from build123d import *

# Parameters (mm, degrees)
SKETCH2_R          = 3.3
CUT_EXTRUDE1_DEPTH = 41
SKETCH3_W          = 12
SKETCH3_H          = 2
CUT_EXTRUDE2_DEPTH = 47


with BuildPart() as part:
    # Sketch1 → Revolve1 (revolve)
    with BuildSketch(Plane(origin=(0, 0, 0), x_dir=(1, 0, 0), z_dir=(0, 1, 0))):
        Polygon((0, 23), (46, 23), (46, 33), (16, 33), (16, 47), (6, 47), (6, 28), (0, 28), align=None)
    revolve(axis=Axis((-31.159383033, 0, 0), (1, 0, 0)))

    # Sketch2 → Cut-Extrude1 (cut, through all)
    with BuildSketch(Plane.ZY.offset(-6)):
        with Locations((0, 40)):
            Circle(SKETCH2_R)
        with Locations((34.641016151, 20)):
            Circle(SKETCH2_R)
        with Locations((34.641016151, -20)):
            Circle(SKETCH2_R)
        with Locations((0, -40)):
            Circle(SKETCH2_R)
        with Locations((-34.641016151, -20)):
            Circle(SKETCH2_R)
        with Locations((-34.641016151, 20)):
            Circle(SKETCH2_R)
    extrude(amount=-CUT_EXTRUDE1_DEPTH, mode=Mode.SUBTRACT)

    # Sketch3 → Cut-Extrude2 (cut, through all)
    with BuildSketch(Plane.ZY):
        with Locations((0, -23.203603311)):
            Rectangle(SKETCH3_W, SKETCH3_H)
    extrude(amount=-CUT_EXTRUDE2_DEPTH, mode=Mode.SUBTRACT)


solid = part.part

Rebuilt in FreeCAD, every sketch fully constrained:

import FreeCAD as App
import Part
import Sketcher
from FreeCAD import Vector
Q = App.Units.Quantity

doc = App.newDocument("Part")
body = doc.addObject("PartDesign::Body", "Body")

sketch1 = doc.addObject("Sketcher::SketchObject", "Sketch")
body.addObject(sketch1)
sketch1.AttachmentSupport = (doc.XZ_Plane, [""])
sketch1.MapMode = "FlatFace"
sketch1.addGeometry([
    Part.LineSegment(Vector(0, -23, 0), Vector(46, -23, 0)),
    Part.LineSegment(Vector(46, -23, 0), Vector(46, -33, 0)),
    Part.LineSegment(Vector(46, -33, 0), Vector(16, -33, 0)),
    Part.LineSegment(Vector(16, -33, 0), Vector(16, -47, 0)),
    Part.LineSegment(Vector(16, -47, 0), Vector(6, -47, 0)),
    Part.LineSegment(Vector(6, -47, 0), Vector(6, -28, 0)),
    Part.LineSegment(Vector(6, -28, 0), Vector(0, -28, 0)),
    Part.LineSegment(Vector(0, -28, 0), Vector(0, -23, 0)),
], False)
sketch1.addConstraint([
    Sketcher.Constraint("Coincident", 0, 2, 1, 1),
    Sketcher.Constraint("Coincident", 1, 2, 2, 1),
    Sketcher.Constraint("Coincident", 2, 2, 3, 1),
    Sketcher.Constraint("Coincident", 3, 2, 4, 1),
    Sketcher.Constraint("Coincident", 4, 2, 5, 1),
    Sketcher.Constraint("Coincident", 5, 2, 6, 1),
    Sketcher.Constraint("Coincident", 6, 2, 7, 1),
    Sketcher.Constraint("Coincident", 7, 2, 0, 1),
    Sketcher.Constraint("Horizontal", 0),
    Sketcher.Constraint("Vertical", 1),
    Sketcher.Constraint("Horizontal", 2),
    Sketcher.Constraint("Vertical", 3),
    Sketcher.Constraint("Horizontal", 4),
    Sketcher.Constraint("Vertical", 5),
    Sketcher.Constraint("Horizontal", 6),
    Sketcher.Constraint("Vertical", 7),
    Sketcher.Constraint("PointOnObject", 6, 2, -2),
    Sketcher.Constraint("Equal", 4, 1),
    Sketcher.Constraint("DistanceX", 0, 1, 0, 2, Q("46 mm")),
    Sketcher.Constraint("DistanceX", 2, 2, 2, 1, Q("30 mm")),
    Sketcher.Constraint("DistanceX", 4, 2, 4, 1, Q("10 mm")),
    Sketcher.Constraint("DistanceY", 3, 2, 3, 1, Q("14 mm")),
    Sketcher.Constraint("DistanceY", 5, 1, 5, 2, Q("19 mm")),
    Sketcher.Constraint("DistanceY", 0, 2, -1, 1, Q("23 mm")),
])
revolution = doc.addObject("PartDesign::Revolution", "Revolution")
body.addObject(revolution)
revolution.Profile = sketch1
revolution.ReferenceAxis = (sketch1, ["H_Axis"])
revolution.Angle = 360

sketch2 = doc.addObject("Sketcher::SketchObject", "Sketch001")
body.addObject(sketch2)
sketch2.AttachmentSupport = (doc.YZ_Plane, [""])
sketch2.MapMode = "FlatFace"
sketch2.AttachmentOffset = App.Placement(Vector(0, 0, 6), App.Rotation())
sketch2.addGeometry([
    Part.Circle(Vector(40, 0, 0), Vector(0, 0, 1), 3.3),
    Part.Circle(Vector(20, 34.6, 0), Vector(0, 0, 1), 3.3),
    Part.Circle(Vector(-20, 34.6, 0), Vector(0, 0, 1), 3.3),
    Part.Circle(Vector(-40, 0, 0), Vector(0, 0, 1), 3.3),
    Part.Circle(Vector(-20, -34.6, 0), Vector(0, 0, 1), 3.3),
    Part.Circle(Vector(20, -34.6, 0), Vector(0, 0, 1), 3.3),
], False)
sketch2.addConstraint([
    Sketcher.Constraint("Equal", 0, 1),
    Sketcher.Constraint("Equal", 1, 2),
    Sketcher.Constraint("Equal", 2, 3),
    Sketcher.Constraint("Equal", 3, 4),
    Sketcher.Constraint("Equal", 4, 5),
    Sketcher.Constraint("Symmetric", 0, 3, 3, 3, -1, 1),
    Sketcher.Constraint("Symmetric", 1, 3, 4, 3, -1, 1),
    Sketcher.Constraint("Symmetric", 2, 3, 5, 3, -1, 1),
    Sketcher.Constraint("Symmetric", 1, 3, 2, 3, -2),
    Sketcher.Constraint("PointOnObject", 0, 3, -1),
    Sketcher.Constraint("Diameter", 0, Q("6.6 mm")),
    Sketcher.Constraint("DistanceX", -1, 1, 0, 3, Q("40 mm")),
    Sketcher.Constraint("DistanceX", -1, 1, 1, 3, Q("20 mm")),
    Sketcher.Constraint("DistanceY", -1, 1, 1, 3, Q("34.641016 mm")),
])
pocket1 = doc.addObject("PartDesign::Pocket", "Pocket")
body.addObject(pocket1)
pocket1.Profile = sketch2
pocket1.Type = "ThroughAll"
pocket1.Reversed = True

sketch3 = doc.addObject("Sketcher::SketchObject", "Sketch002")
body.addObject(sketch3)
sketch3.AttachmentSupport = (doc.YZ_Plane, [""])
sketch3.MapMode = "FlatFace"
sketch3.addGeometry([
    Part.LineSegment(Vector(-22.2, -6, 0), Vector(-24.2, -6, 0)),
    Part.LineSegment(Vector(-24.2, -6, 0), Vector(-24.2, 6, 0)),
    Part.LineSegment(Vector(-24.2, 6, 0), Vector(-22.2, 6, 0)),
    Part.LineSegment(Vector(-22.2, 6, 0), Vector(-22.2, -6, 0)),
], False)
sketch3.addConstraint([
    Sketcher.Constraint("Coincident", 0, 2, 1, 1),
    Sketcher.Constraint("Coincident", 1, 2, 2, 1),
    Sketcher.Constraint("Coincident", 2, 2, 3, 1),
    Sketcher.Constraint("Coincident", 3, 2, 0, 1),
    Sketcher.Constraint("Horizontal", 0),
    Sketcher.Constraint("Vertical", 1),
    Sketcher.Constraint("Horizontal", 2),
    Sketcher.Constraint("Vertical", 3),
    Sketcher.Constraint("DistanceX", 0, 2, 0, 1, Q("2 mm")),
    Sketcher.Constraint("DistanceY", 1, 1, 1, 2, Q("12 mm")),
    Sketcher.Constraint("DistanceY", 0, 2, -1, 1, Q("6 mm")),
    Sketcher.Constraint("DistanceX", 0, 2, -1, 1, Q("24.203603 mm")),
])
pocket2 = doc.addObject("PartDesign::Pocket", "Pocket001")
body.addObject(pocket2)
pocket2.Profile = sketch3
pocket2.Type = "ThroughAll"
pocket2.Reversed = True

doc.recompute()
